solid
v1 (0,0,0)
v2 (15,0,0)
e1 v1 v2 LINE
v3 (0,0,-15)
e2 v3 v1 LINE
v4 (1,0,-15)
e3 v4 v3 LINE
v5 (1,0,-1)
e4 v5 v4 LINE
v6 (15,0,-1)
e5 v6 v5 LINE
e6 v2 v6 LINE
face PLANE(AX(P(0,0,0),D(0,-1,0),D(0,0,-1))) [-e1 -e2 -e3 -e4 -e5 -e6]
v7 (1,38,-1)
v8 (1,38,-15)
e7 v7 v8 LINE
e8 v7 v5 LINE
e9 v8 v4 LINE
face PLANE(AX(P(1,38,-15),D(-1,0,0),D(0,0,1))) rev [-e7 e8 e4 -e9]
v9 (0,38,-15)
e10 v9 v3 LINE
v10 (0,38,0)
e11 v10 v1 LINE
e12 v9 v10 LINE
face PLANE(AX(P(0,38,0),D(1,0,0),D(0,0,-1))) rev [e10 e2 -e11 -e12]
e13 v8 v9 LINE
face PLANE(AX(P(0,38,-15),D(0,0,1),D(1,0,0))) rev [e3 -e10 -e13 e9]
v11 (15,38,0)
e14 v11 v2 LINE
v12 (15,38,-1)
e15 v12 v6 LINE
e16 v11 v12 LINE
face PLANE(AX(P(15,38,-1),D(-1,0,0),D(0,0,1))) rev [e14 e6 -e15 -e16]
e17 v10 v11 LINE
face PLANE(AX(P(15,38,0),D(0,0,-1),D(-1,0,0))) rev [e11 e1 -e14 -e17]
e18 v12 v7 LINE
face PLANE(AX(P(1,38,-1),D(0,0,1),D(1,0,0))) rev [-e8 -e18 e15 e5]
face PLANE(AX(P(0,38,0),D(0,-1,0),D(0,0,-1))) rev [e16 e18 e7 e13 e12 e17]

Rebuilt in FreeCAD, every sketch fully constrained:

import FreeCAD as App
import Part
import Sketcher

V = App.Vector


def add_polygon(sketch, points):
    """Adds a closed chain of lines whose ends are joined by coincident constraints."""
    first, n = sketch.GeometryCount, len(points)
    for a, b in zip(points, points[1:] + points[:1]):
        sketch.addGeometry(Part.LineSegment(App.Vector(*a, 0), App.Vector(*b, 0)), False)
    for i in range(n):
        sketch.addConstraint(Sketcher.Constraint("Coincident", first + i, 2, first + (i + 1) % n, 1))

doc = App.newDocument("Part")
body = doc.addObject("PartDesign::Body", "Body")

sketch1 = doc.addObject("Sketcher::SketchObject", "Sketch")
body.addObject(sketch1)
sketch1.AttachmentSupport = (doc.XZ_Plane, [""])
sketch1.MapMode = "FlatFace"
add_polygon(sketch1, [(0, -15), (0, 0), (15, 0), (15, -1), (1, -1), (1, -15)])
sketch1.addConstraint([
    Sketcher.Constraint("Vertical", 0),
    Sketcher.Constraint("Horizontal", 1),
    Sketcher.Constraint("Vertical", 2),
    Sketcher.Constraint("Horizontal", 3),
    Sketcher.Constraint("Vertical", 4),
    Sketcher.Constraint("Horizontal", 5),
    Sketcher.Constraint("Coincident", 0, 2, -1, 1),
    Sketcher.Constraint("Equal", 1, 0),
    Sketcher.Constraint("Equal", 5, 2),
    Sketcher.Constraint("DistanceX", 1, 1, 1, 2, 15.0),
    Sketcher.Constraint("DistanceX", 3, 2, 3, 1, 14.0),
])
pad1 = doc.addObject("PartDesign::Pad", "Pad")
body.addObject(pad1)
pad1.Profile = sketch1
pad1.Length = 38
pad1.Reversed = True

doc.recompute()
